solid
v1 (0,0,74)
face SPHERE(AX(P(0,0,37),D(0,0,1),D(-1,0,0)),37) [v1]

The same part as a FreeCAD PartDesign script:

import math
import FreeCAD as App
import Part
import Sketcher

V = App.Vector

doc = App.newDocument("Part")
body = doc.addObject("PartDesign::Body", "Body")

sketch1 = body.newObject("Sketcher::SketchObject", "Sketch")
sketch1.AttachmentSupport = (doc.getObject("XZ_Plane"), [""])
sketch1.MapMode = "FlatFace"
sketch1.addGeometry(Part.LineSegment(V(0, 74, 0), V(0, 0, 0)), False)
sketch1.addGeometry(Part.ArcOfCircle(Part.Circle(V(0, 37, 0), V(0, 0, 1), 37), math.radians(90), math.radians(270)), False)
sketch1.addConstraint(Sketcher.Constraint("Coincident", 0, 1, 1, 1))
sketch1.addConstraint(Sketcher.Constraint("Coincident", 1, 2, 0, 2))
sketch1.addConstraint(Sketcher.Constraint("Vertical", 0))
sketch1.addConstraint(Sketcher.Constraint("Coincident", 1, 2, -1, 1))
sketch1.addConstraint(Sketcher.Constraint("PointOnObject", 1, 3, -2))
sketch1.addConstraint(Sketcher.Constraint("Radius", 1, 37.0))
revolution = body.newObject("PartDesign::Revolution", "Revolution")
revolution.Profile = sketch1
revolution.ReferenceAxis = (sketch1, ["V_Axis"])
revolution.Angle = 360

doc.recompute()
